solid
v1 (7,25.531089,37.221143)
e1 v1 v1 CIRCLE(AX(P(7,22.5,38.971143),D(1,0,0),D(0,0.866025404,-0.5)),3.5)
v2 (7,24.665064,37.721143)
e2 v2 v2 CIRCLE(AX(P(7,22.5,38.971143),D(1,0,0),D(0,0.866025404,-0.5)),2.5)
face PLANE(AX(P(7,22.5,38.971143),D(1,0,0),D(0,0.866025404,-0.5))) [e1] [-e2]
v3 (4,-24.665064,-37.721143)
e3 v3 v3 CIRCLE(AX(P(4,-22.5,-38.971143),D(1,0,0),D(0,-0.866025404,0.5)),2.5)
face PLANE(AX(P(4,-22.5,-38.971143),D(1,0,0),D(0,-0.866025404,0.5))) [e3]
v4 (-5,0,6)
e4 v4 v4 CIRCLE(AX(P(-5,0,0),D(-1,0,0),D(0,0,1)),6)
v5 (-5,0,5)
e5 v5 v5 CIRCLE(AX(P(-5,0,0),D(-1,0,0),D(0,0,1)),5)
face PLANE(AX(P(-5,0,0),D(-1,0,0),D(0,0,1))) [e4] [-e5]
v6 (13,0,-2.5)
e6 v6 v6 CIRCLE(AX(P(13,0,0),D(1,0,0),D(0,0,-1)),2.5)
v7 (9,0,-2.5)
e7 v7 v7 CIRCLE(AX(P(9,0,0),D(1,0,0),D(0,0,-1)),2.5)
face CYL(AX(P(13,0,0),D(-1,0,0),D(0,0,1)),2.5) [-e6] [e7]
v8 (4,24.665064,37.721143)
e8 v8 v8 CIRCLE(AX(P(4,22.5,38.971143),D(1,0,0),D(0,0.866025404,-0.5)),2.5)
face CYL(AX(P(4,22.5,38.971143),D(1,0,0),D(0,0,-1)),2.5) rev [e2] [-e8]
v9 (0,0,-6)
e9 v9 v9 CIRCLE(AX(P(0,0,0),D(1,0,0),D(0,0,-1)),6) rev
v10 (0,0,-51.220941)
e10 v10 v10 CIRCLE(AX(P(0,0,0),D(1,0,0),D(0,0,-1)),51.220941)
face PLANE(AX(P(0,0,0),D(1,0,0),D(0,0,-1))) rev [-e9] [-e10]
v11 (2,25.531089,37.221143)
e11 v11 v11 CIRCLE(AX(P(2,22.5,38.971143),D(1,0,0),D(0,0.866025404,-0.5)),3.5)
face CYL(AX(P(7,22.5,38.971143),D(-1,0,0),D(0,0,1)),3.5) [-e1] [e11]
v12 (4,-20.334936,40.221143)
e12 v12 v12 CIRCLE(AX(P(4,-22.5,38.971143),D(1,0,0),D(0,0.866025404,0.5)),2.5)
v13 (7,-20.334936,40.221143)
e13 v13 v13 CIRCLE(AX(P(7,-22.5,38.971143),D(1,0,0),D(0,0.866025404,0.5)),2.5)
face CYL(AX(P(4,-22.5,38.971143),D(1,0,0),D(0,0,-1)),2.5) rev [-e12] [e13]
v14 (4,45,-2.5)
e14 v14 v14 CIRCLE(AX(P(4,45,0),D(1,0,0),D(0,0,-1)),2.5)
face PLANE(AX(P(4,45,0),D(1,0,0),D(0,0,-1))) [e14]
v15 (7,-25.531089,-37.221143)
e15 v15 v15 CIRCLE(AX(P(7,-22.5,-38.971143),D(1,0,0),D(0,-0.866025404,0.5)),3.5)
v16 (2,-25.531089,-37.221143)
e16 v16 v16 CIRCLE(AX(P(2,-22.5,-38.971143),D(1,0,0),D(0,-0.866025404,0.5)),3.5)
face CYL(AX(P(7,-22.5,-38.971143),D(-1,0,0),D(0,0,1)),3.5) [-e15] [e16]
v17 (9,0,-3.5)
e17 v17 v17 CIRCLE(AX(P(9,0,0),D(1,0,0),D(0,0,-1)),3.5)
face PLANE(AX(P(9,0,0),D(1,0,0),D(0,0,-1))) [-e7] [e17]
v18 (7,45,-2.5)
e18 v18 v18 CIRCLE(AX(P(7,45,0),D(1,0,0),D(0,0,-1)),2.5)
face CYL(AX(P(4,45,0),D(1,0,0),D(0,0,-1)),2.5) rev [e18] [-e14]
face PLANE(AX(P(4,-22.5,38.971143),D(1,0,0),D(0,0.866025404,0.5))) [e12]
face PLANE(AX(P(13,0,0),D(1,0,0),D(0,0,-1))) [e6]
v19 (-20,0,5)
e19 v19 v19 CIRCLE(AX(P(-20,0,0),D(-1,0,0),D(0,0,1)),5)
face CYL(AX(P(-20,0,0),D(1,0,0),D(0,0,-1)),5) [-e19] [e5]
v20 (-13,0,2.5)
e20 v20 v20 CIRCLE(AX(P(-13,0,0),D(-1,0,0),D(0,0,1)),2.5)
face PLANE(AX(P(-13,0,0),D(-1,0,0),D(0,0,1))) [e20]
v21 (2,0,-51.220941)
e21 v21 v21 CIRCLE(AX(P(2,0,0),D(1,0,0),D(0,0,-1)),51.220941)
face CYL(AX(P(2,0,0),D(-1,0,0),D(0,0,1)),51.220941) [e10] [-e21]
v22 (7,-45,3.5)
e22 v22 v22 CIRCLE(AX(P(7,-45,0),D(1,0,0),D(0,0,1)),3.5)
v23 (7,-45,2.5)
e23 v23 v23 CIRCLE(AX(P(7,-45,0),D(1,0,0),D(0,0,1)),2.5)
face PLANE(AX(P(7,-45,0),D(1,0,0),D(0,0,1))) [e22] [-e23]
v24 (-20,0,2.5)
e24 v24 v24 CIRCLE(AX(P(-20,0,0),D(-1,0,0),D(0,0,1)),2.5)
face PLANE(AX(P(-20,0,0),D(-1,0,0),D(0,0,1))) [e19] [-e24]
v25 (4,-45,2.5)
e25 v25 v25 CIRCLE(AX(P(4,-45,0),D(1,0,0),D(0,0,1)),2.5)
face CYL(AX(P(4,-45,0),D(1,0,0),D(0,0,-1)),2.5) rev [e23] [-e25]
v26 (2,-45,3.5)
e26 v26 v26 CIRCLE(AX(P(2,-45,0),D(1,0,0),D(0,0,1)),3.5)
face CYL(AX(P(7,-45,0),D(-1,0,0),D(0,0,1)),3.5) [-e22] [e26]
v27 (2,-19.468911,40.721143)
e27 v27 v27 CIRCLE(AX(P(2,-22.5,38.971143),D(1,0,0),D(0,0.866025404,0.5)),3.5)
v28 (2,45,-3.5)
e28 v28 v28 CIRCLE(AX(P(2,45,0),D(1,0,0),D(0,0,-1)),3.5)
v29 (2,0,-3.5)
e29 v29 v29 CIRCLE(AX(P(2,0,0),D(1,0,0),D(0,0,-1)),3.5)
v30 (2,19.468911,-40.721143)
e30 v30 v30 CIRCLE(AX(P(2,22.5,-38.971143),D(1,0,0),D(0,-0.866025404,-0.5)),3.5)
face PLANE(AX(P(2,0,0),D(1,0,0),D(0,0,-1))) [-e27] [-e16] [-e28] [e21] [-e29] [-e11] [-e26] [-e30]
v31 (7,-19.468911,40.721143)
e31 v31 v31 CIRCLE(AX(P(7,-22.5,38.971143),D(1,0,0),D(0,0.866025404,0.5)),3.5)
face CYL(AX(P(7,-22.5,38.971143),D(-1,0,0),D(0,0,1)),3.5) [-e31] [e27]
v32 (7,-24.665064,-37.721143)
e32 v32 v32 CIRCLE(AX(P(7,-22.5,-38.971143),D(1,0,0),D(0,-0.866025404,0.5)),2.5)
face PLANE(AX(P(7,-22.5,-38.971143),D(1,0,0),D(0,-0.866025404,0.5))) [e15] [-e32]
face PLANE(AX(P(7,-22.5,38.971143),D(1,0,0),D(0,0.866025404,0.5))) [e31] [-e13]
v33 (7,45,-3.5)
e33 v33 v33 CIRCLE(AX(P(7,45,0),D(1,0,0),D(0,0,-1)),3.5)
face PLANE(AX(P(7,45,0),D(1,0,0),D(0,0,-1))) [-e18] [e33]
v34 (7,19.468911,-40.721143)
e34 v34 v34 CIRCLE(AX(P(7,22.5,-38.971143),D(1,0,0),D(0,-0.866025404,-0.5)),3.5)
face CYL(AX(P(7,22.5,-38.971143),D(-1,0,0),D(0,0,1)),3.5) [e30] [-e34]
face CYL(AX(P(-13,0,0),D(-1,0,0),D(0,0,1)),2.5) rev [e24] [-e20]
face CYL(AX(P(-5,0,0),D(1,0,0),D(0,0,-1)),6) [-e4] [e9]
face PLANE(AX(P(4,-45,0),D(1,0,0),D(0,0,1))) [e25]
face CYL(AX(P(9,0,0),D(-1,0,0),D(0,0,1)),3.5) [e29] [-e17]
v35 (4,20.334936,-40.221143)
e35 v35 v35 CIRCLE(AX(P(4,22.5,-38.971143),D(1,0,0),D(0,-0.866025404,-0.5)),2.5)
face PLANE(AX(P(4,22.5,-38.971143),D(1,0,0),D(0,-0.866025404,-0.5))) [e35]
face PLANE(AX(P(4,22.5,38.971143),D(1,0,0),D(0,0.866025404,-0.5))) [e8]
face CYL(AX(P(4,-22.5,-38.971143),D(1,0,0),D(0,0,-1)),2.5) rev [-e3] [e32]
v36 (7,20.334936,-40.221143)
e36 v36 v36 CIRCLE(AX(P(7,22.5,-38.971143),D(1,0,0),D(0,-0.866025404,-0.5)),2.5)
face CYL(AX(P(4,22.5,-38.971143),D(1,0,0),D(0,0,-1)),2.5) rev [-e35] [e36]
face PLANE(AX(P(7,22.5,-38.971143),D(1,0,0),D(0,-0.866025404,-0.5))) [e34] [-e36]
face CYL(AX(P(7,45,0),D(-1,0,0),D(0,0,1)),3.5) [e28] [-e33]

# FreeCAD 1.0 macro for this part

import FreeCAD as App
import Part
import Sketcher

V = App.Vector

doc = App.newDocument("Part")
body = doc.addObject("PartDesign::Body", "Body")

# Sketch on YZ plane
sketch1 = body.newObject("Sketcher::SketchObject", "Sketch")
sketch1.AttachmentSupport = (doc.getObject("YZ_Plane"), [""])
sketch1.MapMode = "FlatFace"
sketch1.addGeometry(Part.Circle(V(0, 0, 0), V(0, 0, 1), 51), False)
sketch1.addConstraint([
    Sketcher.Constraint("Coincident", 0, 3, -1, 1),
    Sketcher.Constraint("Diameter", 0, 102.441881),
])
pad1 = body.newObject("PartDesign::Pad", "Pad")
pad1.Profile = sketch1
pad1.Length = 2

# Sketch on YZ plane
sketch2 = body.newObject("Sketcher::SketchObject", "Sketch001")
sketch2.AttachmentSupport = (doc.getObject("YZ_Plane"), [""])
sketch2.MapMode = "FlatFace"
sketch2.AttachmentOffset = App.Placement(V(0, 0, 2), App.Rotation())
sketch2.addGeometry(Part.Circle(V(45, 0, 0), V(0, 0, 1), 3.5), False)
sketch2.addConstraint([
    Sketcher.Constraint("PointOnObject", 0, 3, -1),
    Sketcher.Constraint("Diameter", 0, 7.0),
    Sketcher.Constraint("DistanceX", -1, 1, 0, 3, 45.0),
])
pad2 = body.newObject("PartDesign::Pad", "Pad001")
pad2.Profile = sketch2
pad2.Length = 5
doc.recompute()

polarpattern = body.newObject("PartDesign::PolarPattern", "PolarPattern")
polarpattern.Originals = [pad2]
polarpattern.Axis = (doc.getObject("X_Axis"), [""])
polarpattern.Angle = 360
polarpattern.Occurrences = 6
body.Tip = polarpattern

# Sketch on YZ plane
sketch3 = body.newObject("Sketcher::SketchObject", "Sketch002")
sketch3.AttachmentSupport = (doc.getObject("YZ_Plane"), [""])
sketch3.MapMode = "FlatFace"
sketch3.AttachmentOffset = App.Placement(V(0, 0, 7), App.Rotation())
sketch3.addGeometry(Part.Circle(V(45, 0, 0), V(0, 0, 1), 2.5), False)
sketch3.addConstraint([
    Sketcher.Constraint("PointOnObject", 0, 3, -1),
    Sketcher.Constraint("Diameter", 0, 5.0),
    Sketcher.Constraint("DistanceX", -1, 1, 0, 3, 45.0),
])
pocket1 = body.newObject("PartDesign::Pocket", "Pocket")
pocket1.Profile = sketch3
pocket1.Length = 3
doc.recompute()

polarpattern2 = body.newObject("PartDesign::PolarPattern", "PolarPattern001")
polarpattern2.Originals = [pocket1]
polarpattern2.Axis = (doc.getObject("X_Axis"), [""])
polarpattern2.Angle = 360
polarpattern2.Occurrences = 6
body.Tip = polarpattern2

# Sketch on YZ plane
sketch4 = body.newObject("Sketcher::SketchObject", "Sketch003")
sketch4.AttachmentSupport = (doc.getObject("YZ_Plane"), [""])
sketch4.MapMode = "FlatFace"
sketch4.AttachmentOffset = App.Placement(V(0, 0, 2), App.Rotation())
sketch4.addGeometry(Part.Circle(V(0, 0, 0), V(0, 0, 1), 2.5), False)
sketch4.addConstraint([
    Sketcher.Constraint("Coincident", 0, 3, -1, 1),
    Sketcher.Constraint("Diameter", 0, 5.0),
])
pad3 = body.newObject("PartDesign::Pad", "Pad002")
pad3.Profile = sketch4
pad3.Length = 11

# Sketch on YZ plane
sketch5 = body.newObject("Sketcher::SketchObject", "Sketch004")
sketch5.AttachmentSupport = (doc.getObject("YZ_Plane"), [""])
sketch5.MapMode = "FlatFace"
sketch5.AttachmentOffset = App.Placement(V(0, 0, 2), App.Rotation())
sketch5.addGeometry(Part.Circle(V(0, 0, 0), V(0, 0, 1), 3.5), False)
sketch5.addConstraint([
    Sketcher.Constraint("Coincident", 0, 3, -1, 1),
    Sketcher.Constraint("Diameter", 0, 7.0),
])
pad4 = body.newObject("PartDesign::Pad", "Pad003")
pad4.Profile = sketch5
pad4.Length = 7

# Sketch on YZ plane
sketch6 = body.newObject("Sketcher::SketchObject", "Sketch005")
sketch6.AttachmentSupport = (doc.getObject("YZ_Plane"), [""])
sketch6.MapMode = "FlatFace"
sketch6.addGeometry(Part.Circle(V(0, 0, 0), V(0, 0, 1), 5), False)
sketch6.addConstraint([
    Sketcher.Constraint("Coincident", 0, 3, -1, 1),
    Sketcher.Constraint("Diameter", 0, 10.0),
])
pad5 = body.newObject("PartDesign::Pad", "Pad004")
pad5.Profile = sketch6
pad5.Length = 20
pad5.Reversed = True

# Sketch on YZ plane
sketch7 = body.newObject("Sketcher::SketchObject", "Sketch006")
sketch7.AttachmentSupport = (doc.getObject("YZ_Plane"), [""])
sketch7.MapMode = "FlatFace"
sketch7.addGeometry(Part.Circle(V(0, 0, 0), V(0, 0, 1), 6), False)
sketch7.addConstraint([
    Sketcher.Constraint("Coincident", 0, 3, -1, 1),
    Sketcher.Constraint("Diameter", 0, 12.0),
])
pad6 = body.newObject("PartDesign::Pad", "Pad005")
pad6.Profile = sketch7
pad6.Length = 5
pad6.Reversed = True

# Sketch on YZ plane
sketch8 = body.newObject("Sketcher::SketchObject", "Sketch007")
sketch8.AttachmentSupport = (doc.getObject("YZ_Plane"), [""])
sketch8.MapMode = "FlatFace"
sketch8.AttachmentOffset = App.Placement(V(0, 0, -20), App.Rotation())
sketch8.addGeometry(Part.Circle(V(0, 0, 0), V(0, 0, 1), 2.5), False)
sketch8.addConstraint([
    Sketcher.Constraint("Coincident", 0, 3, -1, 1),
    Sketcher.Constraint("Diameter", 0, 5.0),
])
pocket2 = body.newObject("PartDesign::Pocket", "Pocket001")
pocket2.Profile = sketch8
pocket2.Length = 7
pocket2.Reversed = True

doc.recompute()
